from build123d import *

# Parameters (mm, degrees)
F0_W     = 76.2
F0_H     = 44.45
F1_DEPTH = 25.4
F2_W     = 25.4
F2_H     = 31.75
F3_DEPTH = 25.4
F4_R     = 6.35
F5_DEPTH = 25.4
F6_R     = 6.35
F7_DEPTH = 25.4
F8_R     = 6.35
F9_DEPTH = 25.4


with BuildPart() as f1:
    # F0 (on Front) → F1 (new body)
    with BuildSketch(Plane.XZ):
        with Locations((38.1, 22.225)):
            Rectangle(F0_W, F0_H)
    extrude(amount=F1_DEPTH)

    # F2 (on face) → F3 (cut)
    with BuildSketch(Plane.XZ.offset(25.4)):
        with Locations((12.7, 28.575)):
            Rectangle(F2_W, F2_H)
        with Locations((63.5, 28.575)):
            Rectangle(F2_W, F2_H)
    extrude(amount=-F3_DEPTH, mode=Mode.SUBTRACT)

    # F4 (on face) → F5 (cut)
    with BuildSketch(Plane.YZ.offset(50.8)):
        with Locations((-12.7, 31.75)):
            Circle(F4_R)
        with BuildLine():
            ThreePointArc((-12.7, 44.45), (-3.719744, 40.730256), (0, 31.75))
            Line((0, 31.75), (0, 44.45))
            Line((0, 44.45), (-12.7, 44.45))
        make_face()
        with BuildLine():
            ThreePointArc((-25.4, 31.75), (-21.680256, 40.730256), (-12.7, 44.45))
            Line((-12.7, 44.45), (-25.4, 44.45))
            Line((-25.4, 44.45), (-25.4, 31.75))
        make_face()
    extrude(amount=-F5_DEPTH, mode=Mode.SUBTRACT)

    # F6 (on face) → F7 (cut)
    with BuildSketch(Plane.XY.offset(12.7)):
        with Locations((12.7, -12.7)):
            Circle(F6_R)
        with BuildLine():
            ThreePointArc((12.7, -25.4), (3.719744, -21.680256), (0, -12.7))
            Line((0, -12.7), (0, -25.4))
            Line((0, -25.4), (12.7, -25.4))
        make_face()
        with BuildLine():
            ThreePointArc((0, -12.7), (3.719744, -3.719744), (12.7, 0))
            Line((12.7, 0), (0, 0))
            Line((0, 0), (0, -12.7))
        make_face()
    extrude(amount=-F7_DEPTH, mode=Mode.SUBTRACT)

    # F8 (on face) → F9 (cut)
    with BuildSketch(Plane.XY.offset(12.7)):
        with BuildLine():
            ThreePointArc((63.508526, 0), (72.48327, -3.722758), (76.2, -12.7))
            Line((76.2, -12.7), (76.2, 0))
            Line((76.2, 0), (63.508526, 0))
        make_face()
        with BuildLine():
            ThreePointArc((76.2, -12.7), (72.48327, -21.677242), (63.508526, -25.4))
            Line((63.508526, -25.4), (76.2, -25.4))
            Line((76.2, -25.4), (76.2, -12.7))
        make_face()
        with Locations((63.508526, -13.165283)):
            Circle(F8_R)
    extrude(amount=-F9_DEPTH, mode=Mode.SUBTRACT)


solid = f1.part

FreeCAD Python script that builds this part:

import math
import FreeCAD as App
import Part
import Sketcher
from FreeCAD import Vector
Q = App.Units.Quantity


def add_polygon(sketch, points):
    """Adds a closed chain of lines whose ends are joined by coincident constraints."""
    first, n = sketch.GeometryCount, len(points)
    for a, b in zip(points, points[1:] + points[:1]):
        sketch.addGeometry(Part.LineSegment(App.Vector(*a, 0), App.Vector(*b, 0)), False)
    for i in range(n):
        sketch.addConstraint(Sketcher.Constraint("Coincident", first + i, 2, first + (i + 1) % n, 1))

doc = App.newDocument("Part")
body = doc.addObject("PartDesign::Body", "Body")

# Sketch on XZ plane
sketch1 = body.newObject("Sketcher::SketchObject", "Sketch")
sketch1.AttachmentSupport = (doc.getObject("XZ_Plane"), [""])
sketch1.MapMode = "FlatFace"
add_polygon(sketch1, [(0, 44.45), (0, 0), (76.2, 0), (76.2, 44.45)])  # lines 0-3
sketch1.addConstraint(Sketcher.Constraint("Vertical", 0))
sketch1.addConstraint(Sketcher.Constraint("Horizontal", 1))
sketch1.addConstraint(Sketcher.Constraint("Vertical", 2))
sketch1.addConstraint(Sketcher.Constraint("Horizontal", 3))
sketch1.addConstraint(Sketcher.Constraint("Coincident", 0, 2, -1, 1))
sketch1.addConstraint(Sketcher.Constraint("DistanceX", 1, 1, 1, 2, Q("3 in")))
sketch1.addConstraint(Sketcher.Constraint("DistanceY", 0, 2, 0, 1, Q("1.75 in")))
pad1 = body.newObject("PartDesign::Pad", "Pad")
pad1.Profile = sketch1
pad1.Length = Q("1 in")

# Sketch on XZ plane
sketch2 = body.newObject("Sketcher::SketchObject", "Sketch001")
sketch2.AttachmentSupport = (doc.getObject("XZ_Plane"), [""])
sketch2.MapMode = "FlatFace"
sketch2.AttachmentOffset = App.Placement(Vector(0, 0, 1 * 25.4), App.Rotation())
add_polygon(sketch2, [(0, 44.45), (0, 12.7), (25.4, 12.7), (25.4, 44.45)])  # lines 0-3
add_polygon(sketch2, [(50.8, 44.45), (50.8, 12.7), (76.2, 12.7), (76.2, 44.45)])  # lines 4-7
sketch2.addConstraint(Sketcher.Constraint("Vertical", 0))
sketch2.addConstraint(Sketcher.Constraint("Horizontal", 1))
sketch2.addConstraint(Sketcher.Constraint("Vertical", 2))
sketch2.addConstraint(Sketcher.Constraint("Horizontal", 3))
sketch2.addConstraint(Sketcher.Constraint("Vertical", 4))
sketch2.addConstraint(Sketcher.Constraint("Horizontal", 5))
sketch2.addConstraint(Sketcher.Constraint("Vertical", 6))
sketch2.addConstraint(Sketcher.Constraint("Horizontal", 7))
sketch2.addConstraint(Sketcher.Constraint("PointOnObject", 0, 2, -2))
sketch2.addConstraint(Sketcher.Constraint("Horizontal", 1, 2, 4, 2))
sketch2.addConstraint(Sketcher.Constraint("Horizontal", 3, 2, 6, 2))
sketch2.addConstraint(Sketcher.Constraint("Equal", 3, 5))
sketch2.addConstraint(Sketcher.Constraint("DistanceX", 1, 1, 1, 2, Q("1 in")))
sketch2.addConstraint(Sketcher.Constraint("DistanceX", -1, 1, 4, 2, Q("2 in")))
sketch2.addConstraint(Sketcher.Constraint("DistanceY", 0, 2, 0, 1, Q("1.25 in")))
sketch2.addConstraint(Sketcher.Constraint("DistanceY", -1, 1, 0, 2, Q("0.5 in")))
pocket1 = body.newObject("PartDesign::Pocket", "Pocket")
pocket1.Profile = sketch2
pocket1.Length = Q("1 in")

# Sketch on YZ plane
sketch3 = body.newObject("Sketcher::SketchObject", "Sketch002")
sketch3.AttachmentSupport = (doc.getObject("YZ_Plane"), [""])
sketch3.MapMode = "FlatFace"
sketch3.AttachmentOffset = App.Placement(Vector(0, 0, 2 * 25.4), App.Rotation())
sketch3.addGeometry(Part.Circle(Vector(-12.7, 31.75, 0), Vector(0, 0, 1), 6.35), False)
sketch3.addGeometry(Part.ArcOfCircle(Part.Circle(Vector(-12.7, 31.75, 0), Vector(0, 0, 1), 12.7), math.radians(0.000002), math.radians(89.999998)), False)
sketch3.addGeometry(Part.LineSegment(Vector(0, 31.75, 0), Vector(0, 44.45, 0)), False)
sketch3.addGeometry(Part.LineSegment(Vector(0, 44.45, 0), Vector(-12.7, 44.45, 0)), False)
sketch3.addGeometry(Part.ArcOfCircle(Part.Circle(Vector(-12.7, 31.75, 0), Vector(0, 0, 1), 12.7), math.radians(90.000002), math.radians(179.999998)), False)
sketch3.addGeometry(Part.LineSegment(Vector(-12.7, 44.45, 0), Vector(-25.4, 44.45, 0)), False)
sketch3.addGeometry(Part.LineSegment(Vector(-25.4, 44.45, 0), Vector(-25.4, 31.75, 0)), False)
sketch3.addConstraint(Sketcher.Constraint("Tangent", 1, 1, 2, 1))
sketch3.addConstraint(Sketcher.Constraint("Coincident", 2, 2, 3, 1))
sketch3.addConstraint(Sketcher.Constraint("Tangent", 3, 2, 1, 2))
sketch3.addConstraint(Sketcher.Constraint("Tangent", 4, 1, 5, 1))
sketch3.addConstraint(Sketcher.Constraint("Coincident", 5, 2, 6, 1))
sketch3.addConstraint(Sketcher.Constraint("Tangent", 6, 2, 4, 2))
sketch3.addConstraint(Sketcher.Constraint("Vertical", 2))
sketch3.addConstraint(Sketcher.Constraint("Horizontal", 3))
sketch3.addConstraint(Sketcher.Constraint("Horizontal", 5))
sketch3.addConstraint(Sketcher.Constraint("Vertical", 6))
sketch3.addConstraint(Sketcher.Constraint("Coincident", 1, 3, 0, 3))
sketch3.addConstraint(Sketcher.Constraint("Coincident", 4, 3, 0, 3))
sketch3.addConstraint(Sketcher.Constraint("Equal", 1, 4))
sketch3.addConstraint(Sketcher.Constraint("PointOnObject", 1, 1, -2))
sketch3.addConstraint(Sketcher.Constraint("Diameter", 0, Q("0.5 in")))
sketch3.addConstraint(Sketcher.Constraint("Radius", 1, Q("0.5 in")))
sketch3.addConstraint(Sketcher.Constraint("DistanceY", -1, 1, 0, 3, Q("1.25 in")))
pocket2 = body.newObject("PartDesign::Pocket", "Pocket001")
pocket2.Profile = sketch3
pocket2.Length = Q("1 in")

# Sketch on XY plane
sketch4 = body.newObject("Sketcher::SketchObject", "Sketch003")
sketch4.AttachmentSupport = (doc.getObject("XY_Plane"), [""])
sketch4.MapMode = "FlatFace"
sketch4.AttachmentOffset = App.Placement(Vector(0, 0, 0.5 * 25.4), App.Rotation())
sketch4.addGeometry(Part.Circle(Vector(12.7, -12.7, 0), Vector(0, 0, 1), 6.35), False)
sketch4.addGeometry(Part.ArcOfCircle(Part.Circle(Vector(12.7, -12.7, 0), Vector(0, 0, 1), 12.7), math.radians(-179.999998), math.radians(-90.000002)), False)
sketch4.addGeometry(Part.LineSegment(Vector(0, -12.7, 0), Vector(0, -25.4, 0)), False)
sketch4.addGeometry(Part.LineSegment(Vector(0, -25.4, 0), Vector(12.7, -25.4, 0)), False)
sketch4.addGeometry(Part.ArcOfCircle(Part.Circle(Vector(12.7, -12.7, 0), Vector(0, 0, 1), 12.7), math.radians(90.000002), math.radians(179.999998)), False)
sketch4.addGeometry(Part.LineSegment(Vector(12.7, 0, 0), Vector(0, 0, 0)), False)
sketch4.addGeometry(Part.LineSegment(Vector(0, 0, 0), Vector(0, -12.7, 0)), False)
sketch4.addConstraint(Sketcher.Constraint("Tangent", 1, 1, 2, 1))
sketch4.addConstraint(Sketcher.Constraint("Coincident", 2, 2, 3, 1))
sketch4.addConstraint(Sketcher.Constraint("Tangent", 3, 2, 1, 2))
sketch4.addConstraint(Sketcher.Constraint("Tangent", 4, 1, 5, 1))
sketch4.addConstraint(Sketcher.Constraint("Coincident", 5, 2, 6, 1))
sketch4.addConstraint(Sketcher.Constraint("Tangent", 6, 2, 4, 2))
sketch4.addConstraint(Sketcher.Constraint("Vertical", 2))
sketch4.addConstraint(Sketcher.Constraint("Horizontal", 3))
sketch4.addConstraint(Sketcher.Constraint("Horizontal", 5))
sketch4.addConstraint(Sketcher.Constraint("Vertical", 6))
sketch4.addConstraint(Sketcher.Constraint("Coincident", 5, 2, -1, 1))
sketch4.addConstraint(Sketcher.Constraint("Coincident", 1, 3, 0, 3))
sketch4.addConstraint(Sketcher.Constraint("Coincident", 4, 3, 0, 3))
sketch4.addConstraint(Sketcher.Constraint("Equal", 1, 4))
sketch4.addConstraint(Sketcher.Constraint("Diameter", 0, Q("0.5 in")))
sketch4.addConstraint(Sketcher.Constraint("Radius", 1, Q("0.5 in")))
pocket3 = body.newObject("PartDesign::Pocket", "Pocket002")
pocket3.Profile = sketch4
pocket3.Length = Q("1 in")

# Sketch on XY plane
sketch5 = body.newObject("Sketcher::SketchObject", "Sketch004")
sketch5.AttachmentSupport = (doc.getObject("XY_Plane"), [""])
sketch5.MapMode = "FlatFace"
sketch5.AttachmentOffset = App.Placement(Vector(0, 0, 0.5 * 25.4), App.Rotation())
sketch5.addGeometry(Part.ArcOfCircle(Part.Circle(Vector(63.499996, -12.700001, 0), Vector(0, 0, 1), 12.700004), math.radians(0.000003), math.radians(89.961519)), False)
sketch5.addGeometry(Part.LineSegment(Vector(76.2, -12.7, 0), Vector(76.2, 0, 0)), False)
sketch5.addGeometry(Part.LineSegment(Vector(76.2, 0, 0), Vector(63.508526, 0, 0)), False)
sketch5.addGeometry(Part.ArcOfCircle(Part.Circle(Vector(63.499996, -12.699999, 0), Vector(0, 0, 1), 12.700004), math.radians(-89.961519), math.radians(-0.000003)), False)
sketch5.addGeometry(Part.LineSegment(Vector(63.508526, -25.4, 0), Vector(76.2, -25.4, 0)), False)
sketch5.addGeometry(Part.LineSegment(Vector(76.2, -25.4, 0), Vector(76.2, -12.7, 0)), False)
sketch5.addGeometry(Part.Circle(Vector(63.508526, -13.165283, 0), Vector(0, 0, 1), 6.35), False)
sketch5.addConstraint(Sketcher.Constraint("Tangent", 0, 1, 1, 1))
sketch5.addConstraint(Sketcher.Constraint("Coincident", 1, 2, 2, 1))
sketch5.addConstraint(Sketcher.Constraint("Coincident", 2, 2, 0, 2))
sketch5.addConstraint(Sketcher.Constraint("Coincident", 3, 1, 4, 1))
sketch5.addConstraint(Sketcher.Constraint("Coincident", 4, 2, 5, 1))
sketch5.addConstraint(Sketcher.Constraint("Tangent", 5, 2, 3, 2))
sketch5.addConstraint(Sketcher.Constraint("Vertical", 1))
sketch5.addConstraint(Sketcher.Constraint("Horizontal", 2))
sketch5.addConstraint(Sketcher.Constraint("Horizontal", 4))
sketch5.addConstraint(Sketcher.Constraint("Vertical", 5))
sketch5.addConstraint(Sketcher.Constraint("Coincident", 3, 3, 0, 3))
sketch5.addConstraint(Sketcher.Constraint("Equal", 0, 3))
sketch5.addConstraint(Sketcher.Constraint("PointOnObject", 1, 2, -1))
sketch5.addConstraint(Sketcher.Constraint("Vertical", 6, 3, 2, 2))
sketch5.addConstraint(Sketcher.Constraint("Vertical", 2, 2, 3, 1))
sketch5.addConstraint(Sketcher.Constraint("Diameter", 6, Q("0.5 in")))
sketch5.addConstraint(Sketcher.Constraint("Radius", 0, Q("0.5000001 in")))
sketch5.addConstraint(Sketcher.Constraint("DistanceX", -1, 1, 0, 1, Q("3 in")))
sketch5.addConstraint(Sketcher.Constraint("DistanceX", 2, 2, 2, 1, 12.691474))
sketch5.addConstraint(Sketcher.Constraint("DistanceY", 6, 3, -1, 1, 13.165283))
pocket4 = body.newObject("PartDesign::Pocket", "Pocket003")
pocket4.Profile = sketch5
pocket4.Length = Q("1 in")

doc.recompute()
